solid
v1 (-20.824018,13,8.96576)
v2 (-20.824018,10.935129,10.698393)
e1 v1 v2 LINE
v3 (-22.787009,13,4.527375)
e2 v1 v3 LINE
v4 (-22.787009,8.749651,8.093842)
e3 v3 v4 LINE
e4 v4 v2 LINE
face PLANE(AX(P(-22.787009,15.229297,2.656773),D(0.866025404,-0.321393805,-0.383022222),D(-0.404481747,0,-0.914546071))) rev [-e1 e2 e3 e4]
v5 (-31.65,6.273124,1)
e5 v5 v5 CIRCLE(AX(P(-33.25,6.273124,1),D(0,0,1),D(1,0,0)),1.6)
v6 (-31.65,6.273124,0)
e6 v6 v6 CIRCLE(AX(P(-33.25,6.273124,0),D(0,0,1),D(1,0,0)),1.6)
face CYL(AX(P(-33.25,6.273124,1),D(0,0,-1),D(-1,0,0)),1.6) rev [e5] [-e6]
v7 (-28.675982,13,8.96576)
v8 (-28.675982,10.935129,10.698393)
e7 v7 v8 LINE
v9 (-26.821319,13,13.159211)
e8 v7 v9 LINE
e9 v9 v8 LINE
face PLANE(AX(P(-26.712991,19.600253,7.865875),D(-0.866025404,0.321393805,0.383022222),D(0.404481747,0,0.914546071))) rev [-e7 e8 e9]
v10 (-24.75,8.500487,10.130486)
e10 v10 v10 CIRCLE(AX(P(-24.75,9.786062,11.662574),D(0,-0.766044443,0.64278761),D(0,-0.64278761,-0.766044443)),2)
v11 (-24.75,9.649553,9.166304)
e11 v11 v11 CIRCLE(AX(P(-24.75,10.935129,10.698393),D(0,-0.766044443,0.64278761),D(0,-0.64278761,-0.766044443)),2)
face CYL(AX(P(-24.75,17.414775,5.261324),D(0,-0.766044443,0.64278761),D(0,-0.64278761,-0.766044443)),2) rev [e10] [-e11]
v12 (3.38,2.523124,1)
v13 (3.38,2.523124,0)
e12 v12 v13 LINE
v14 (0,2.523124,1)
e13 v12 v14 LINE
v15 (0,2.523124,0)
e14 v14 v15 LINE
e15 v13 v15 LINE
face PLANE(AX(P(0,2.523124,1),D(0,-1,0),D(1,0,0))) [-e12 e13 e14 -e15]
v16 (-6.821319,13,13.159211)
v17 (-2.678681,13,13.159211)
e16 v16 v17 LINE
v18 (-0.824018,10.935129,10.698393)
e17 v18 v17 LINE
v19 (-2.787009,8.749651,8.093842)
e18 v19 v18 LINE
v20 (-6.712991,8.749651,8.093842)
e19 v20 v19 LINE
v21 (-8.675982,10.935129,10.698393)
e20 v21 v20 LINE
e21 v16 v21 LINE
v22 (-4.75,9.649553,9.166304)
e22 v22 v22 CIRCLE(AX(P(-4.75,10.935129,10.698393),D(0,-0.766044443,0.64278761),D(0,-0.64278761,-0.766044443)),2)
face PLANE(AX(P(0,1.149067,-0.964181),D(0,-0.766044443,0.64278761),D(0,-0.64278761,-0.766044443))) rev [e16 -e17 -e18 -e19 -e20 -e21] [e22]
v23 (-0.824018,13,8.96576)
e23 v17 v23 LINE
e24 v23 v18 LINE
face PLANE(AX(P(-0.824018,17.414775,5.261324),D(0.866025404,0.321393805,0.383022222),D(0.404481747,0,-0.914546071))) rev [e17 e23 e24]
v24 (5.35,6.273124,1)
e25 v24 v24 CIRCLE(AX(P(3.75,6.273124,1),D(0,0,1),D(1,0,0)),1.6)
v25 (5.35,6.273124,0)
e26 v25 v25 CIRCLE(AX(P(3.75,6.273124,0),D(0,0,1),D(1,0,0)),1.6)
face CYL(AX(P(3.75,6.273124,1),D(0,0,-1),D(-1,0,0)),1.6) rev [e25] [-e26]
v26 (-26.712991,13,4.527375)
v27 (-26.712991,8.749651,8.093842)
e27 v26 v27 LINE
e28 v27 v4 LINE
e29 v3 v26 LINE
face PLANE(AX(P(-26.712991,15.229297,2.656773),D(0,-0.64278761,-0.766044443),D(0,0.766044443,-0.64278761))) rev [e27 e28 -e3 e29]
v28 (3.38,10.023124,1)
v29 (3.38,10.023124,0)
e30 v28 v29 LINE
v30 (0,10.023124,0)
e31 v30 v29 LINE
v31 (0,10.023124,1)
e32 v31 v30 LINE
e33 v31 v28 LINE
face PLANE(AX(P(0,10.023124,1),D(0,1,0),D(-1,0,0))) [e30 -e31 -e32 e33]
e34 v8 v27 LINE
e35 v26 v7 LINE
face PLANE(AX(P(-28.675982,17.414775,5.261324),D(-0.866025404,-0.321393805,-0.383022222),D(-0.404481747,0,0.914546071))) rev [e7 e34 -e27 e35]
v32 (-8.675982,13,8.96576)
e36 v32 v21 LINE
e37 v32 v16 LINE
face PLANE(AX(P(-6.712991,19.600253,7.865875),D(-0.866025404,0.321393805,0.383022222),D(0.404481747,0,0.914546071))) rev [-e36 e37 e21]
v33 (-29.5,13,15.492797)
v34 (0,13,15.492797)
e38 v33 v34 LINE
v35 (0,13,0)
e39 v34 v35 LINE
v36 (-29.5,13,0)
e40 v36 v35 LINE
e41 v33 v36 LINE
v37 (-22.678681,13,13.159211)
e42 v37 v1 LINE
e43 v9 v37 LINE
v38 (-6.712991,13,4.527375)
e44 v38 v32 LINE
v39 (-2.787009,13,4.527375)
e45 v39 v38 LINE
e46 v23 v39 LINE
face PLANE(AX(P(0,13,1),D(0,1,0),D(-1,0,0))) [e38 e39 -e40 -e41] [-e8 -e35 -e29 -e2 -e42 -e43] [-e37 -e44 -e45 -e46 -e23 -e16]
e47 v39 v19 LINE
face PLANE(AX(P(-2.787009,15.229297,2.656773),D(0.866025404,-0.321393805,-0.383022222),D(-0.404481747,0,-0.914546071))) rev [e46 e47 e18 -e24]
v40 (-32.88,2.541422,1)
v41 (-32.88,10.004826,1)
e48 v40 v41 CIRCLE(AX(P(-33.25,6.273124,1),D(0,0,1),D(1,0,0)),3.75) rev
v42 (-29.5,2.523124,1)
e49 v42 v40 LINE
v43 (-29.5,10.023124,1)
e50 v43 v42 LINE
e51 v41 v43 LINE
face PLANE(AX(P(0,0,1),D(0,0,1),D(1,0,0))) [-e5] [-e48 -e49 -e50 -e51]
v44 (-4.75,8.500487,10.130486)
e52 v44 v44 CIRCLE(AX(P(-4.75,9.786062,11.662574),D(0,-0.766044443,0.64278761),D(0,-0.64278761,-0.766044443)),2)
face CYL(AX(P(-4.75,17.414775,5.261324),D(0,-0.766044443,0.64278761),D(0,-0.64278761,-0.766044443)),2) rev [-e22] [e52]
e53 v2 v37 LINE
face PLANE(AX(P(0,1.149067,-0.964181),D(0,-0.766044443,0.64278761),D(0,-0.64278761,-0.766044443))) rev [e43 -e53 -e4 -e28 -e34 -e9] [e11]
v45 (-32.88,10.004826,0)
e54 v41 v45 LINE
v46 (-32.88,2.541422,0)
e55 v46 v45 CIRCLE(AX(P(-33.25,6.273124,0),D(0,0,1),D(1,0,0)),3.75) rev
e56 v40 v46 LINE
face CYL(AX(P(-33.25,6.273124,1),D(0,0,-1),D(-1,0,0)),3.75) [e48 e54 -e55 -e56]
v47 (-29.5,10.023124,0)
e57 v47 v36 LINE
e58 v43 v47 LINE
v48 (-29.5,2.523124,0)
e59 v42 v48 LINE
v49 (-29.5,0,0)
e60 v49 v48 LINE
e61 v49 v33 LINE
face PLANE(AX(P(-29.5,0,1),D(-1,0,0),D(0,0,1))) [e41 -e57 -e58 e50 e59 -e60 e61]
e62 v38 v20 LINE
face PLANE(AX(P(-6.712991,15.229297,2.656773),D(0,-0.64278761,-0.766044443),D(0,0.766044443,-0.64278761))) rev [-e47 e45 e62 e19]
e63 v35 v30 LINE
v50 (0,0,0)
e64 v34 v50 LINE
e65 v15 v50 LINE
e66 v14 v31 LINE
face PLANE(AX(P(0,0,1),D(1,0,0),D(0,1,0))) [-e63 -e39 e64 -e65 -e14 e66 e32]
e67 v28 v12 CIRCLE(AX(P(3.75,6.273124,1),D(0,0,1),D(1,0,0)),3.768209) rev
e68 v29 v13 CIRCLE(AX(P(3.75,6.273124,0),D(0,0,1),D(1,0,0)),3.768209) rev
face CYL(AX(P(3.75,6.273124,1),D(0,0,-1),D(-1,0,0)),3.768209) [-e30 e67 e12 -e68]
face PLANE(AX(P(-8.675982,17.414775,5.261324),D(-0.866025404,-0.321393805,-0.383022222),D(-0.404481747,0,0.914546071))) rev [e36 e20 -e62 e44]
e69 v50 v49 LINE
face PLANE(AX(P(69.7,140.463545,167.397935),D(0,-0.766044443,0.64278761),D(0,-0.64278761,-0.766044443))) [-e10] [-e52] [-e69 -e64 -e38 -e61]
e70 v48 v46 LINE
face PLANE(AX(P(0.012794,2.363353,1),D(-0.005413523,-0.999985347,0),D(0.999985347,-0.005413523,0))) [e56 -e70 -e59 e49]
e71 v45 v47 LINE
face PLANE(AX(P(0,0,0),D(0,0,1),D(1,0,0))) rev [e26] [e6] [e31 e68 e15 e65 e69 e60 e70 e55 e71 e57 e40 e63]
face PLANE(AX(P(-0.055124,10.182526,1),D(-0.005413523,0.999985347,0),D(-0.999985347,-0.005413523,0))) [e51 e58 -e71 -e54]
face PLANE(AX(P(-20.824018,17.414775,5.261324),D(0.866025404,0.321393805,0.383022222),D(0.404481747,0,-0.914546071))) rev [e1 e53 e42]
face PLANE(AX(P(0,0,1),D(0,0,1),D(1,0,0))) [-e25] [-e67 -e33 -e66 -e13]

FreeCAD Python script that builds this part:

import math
import FreeCAD as App
import Part
import Sketcher
Q = App.Units.Quantity

doc = App.newDocument("Part")
body = doc.addObject("PartDesign::Body", "Body")

# Sketch on XY plane
sketch1 = body.newObject("Sketcher::SketchObject", "Sketch")
sketch1.AttachmentSupport = (doc.getObject("XY_Plane"), [""])
sketch1.MapMode = "FlatFace"
sketch1.addGeometry([
    Part.LineSegment(App.Vector(-29.5, 13, 0), App.Vector(-29.5, 10, 0)),  # 0
    Part.LineSegment(App.Vector(-29.5, 10, 0), App.Vector(-32.9, 10, 0)),  # 1
    Part.ArcOfCircle(Part.Circle(App.Vector(-33.2, 6.3, 0), App.Vector(0, 0, 1), 3.8), math.radians(84), math.radians(276)),  # 2
    Part.LineSegment(App.Vector(-32.9, 2.5, 0), App.Vector(-29.5, 2.5, 0)),  # 3
    Part.LineSegment(App.Vector(-29.5, 2.5, 0), App.Vector(-29.5, 0, 0)),  # 4
    Part.LineSegment(App.Vector(-29.5, 0, 0), App.Vector(0, 0, 0)),  # 5
    Part.LineSegment(App.Vector(0, 0, 0), App.Vector(0, 2.5, 0)),  # 6
    Part.LineSegment(App.Vector(0, 2.5, 0), App.Vector(3.4, 2.5, 0)),  # 7
    Part.ArcOfCircle(Part.Circle(App.Vector(3.8, 6.3, 0), App.Vector(0, 0, 1), 3.8), math.radians(-96), math.radians(96)),  # 8
    Part.LineSegment(App.Vector(3.4, 10, 0), App.Vector(0, 10, 0)),  # 9
    Part.LineSegment(App.Vector(0, 10, 0), App.Vector(0, 13, 0)),  # 10
    Part.LineSegment(App.Vector(0, 13, 0), App.Vector(-29.5, 13, 0)),  # 11
    Part.Circle(App.Vector(-33.2, 6.3, 0), App.Vector(0, 0, 1), 1.6),  # 12
    Part.Circle(App.Vector(3.8, 6.3, 0), App.Vector(0, 0, 1), 1.6),  # 13
], False)
sketch1.addConstraint([
    Sketcher.Constraint("Coincident", 0, 2, 1, 1),
    Sketcher.Constraint("Coincident", 1, 2, 2, 1),
    Sketcher.Constraint("Coincident", 2, 2, 3, 1),
    Sketcher.Constraint("Coincident", 3, 2, 4, 1),
    Sketcher.Constraint("Coincident", 4, 2, 5, 1),
    Sketcher.Constraint("Coincident", 5, 2, 6, 1),
    Sketcher.Constraint("Coincident", 6, 2, 7, 1),
    Sketcher.Constraint("Coincident", 7, 2, 8, 1),
    Sketcher.Constraint("Coincident", 8, 2, 9, 1),
    Sketcher.Constraint("Coincident", 9, 2, 10, 1),
    Sketcher.Constraint("Coincident", 10, 2, 11, 1),
    Sketcher.Constraint("Coincident", 11, 2, 0, 1),
    Sketcher.Constraint("Vertical", 0),
    Sketcher.Constraint("Vertical", 4),
    Sketcher.Constraint("Horizontal", 5),
    Sketcher.Constraint("Vertical", 6),
    Sketcher.Constraint("Horizontal", 7),
    Sketcher.Constraint("Horizontal", 9),
    Sketcher.Constraint("Vertical", 10),
    Sketcher.Constraint("Horizontal", 11),
    Sketcher.Constraint("Coincident", 5, 2, -1, 1),
    Sketcher.Constraint("Coincident", 12, 3, 2, 3),
    Sketcher.Constraint("Coincident", 13, 3, 8, 3),
    Sketcher.Constraint("Equal", 12, 13),
    Sketcher.Constraint("PointOnObject", 9, 2, -2),
    Sketcher.Constraint("Horizontal", 2, 3, 8, 3),
    Sketcher.Constraint("Horizontal", 3, 2, 6, 2),
    Sketcher.Constraint("Horizontal", 0, 2, 8, 2),
    Sketcher.Constraint("Vertical", 1, 2, 2, 2),
    Sketcher.Constraint("Vertical", 0, 2, 3, 2),
    Sketcher.Constraint("Vertical", 7, 2, 8, 2),
    Sketcher.Constraint("Diameter", 12, Q("3.2 mm")),
    Sketcher.Constraint("Radius", 2, Q("3.75 mm")),
    Sketcher.Constraint("DistanceX", 5, 1, 5, 2, Q("29.5 mm")),
    Sketcher.Constraint("DistanceY", -1, 1, 10, 2, Q("13 mm")),
    Sketcher.Constraint("DistanceX", 2, 3, 8, 3, Q("37 mm")),
    Sketcher.Constraint("DistanceX", 7, 1, 7, 2, Q("3.38 mm")),
    Sketcher.Constraint("DistanceY", 3, 2, 0, 2, Q("7.5 mm")),
    Sketcher.Constraint("DistanceX", 2, 3, -1, 1, Q("33.25 mm")),
    Sketcher.Constraint("DistanceX", 1, 2, -1, 1, Q("32.88 mm")),
    Sketcher.Constraint("DistanceY", 0, 2, 0, 1, Q("2.976876 mm")),
])
pad1 = body.newObject("PartDesign::Pad", "Pad")
pad1.Profile = sketch1
pad1.Length = 1

# Sketch on XY plane
sketch2 = body.newObject("Sketcher::SketchObject", "Sketch001")
sketch2.AttachmentSupport = (doc.getObject("XY_Plane"), [""])
sketch2.MapMode = "FlatFace"
sketch2.addGeometry([
    Part.LineSegment(App.Vector(-30, 13, 0), App.Vector(-30, 0, 0)),
    Part.LineSegment(App.Vector(-30, 0, 0), App.Vector(0, 0, 0)),
    Part.LineSegment(App.Vector(0, 0, 0), App.Vector(0, 13, 0)),
    Part.LineSegment(App.Vector(0, 13, 0), App.Vector(-30, 13, 0)),
], False)
sketch2.addConstraint([
    Sketcher.Constraint("Coincident", 0, 2, 1, 1),
    Sketcher.Constraint("Coincident", 1, 2, 2, 1),
    Sketcher.Constraint("Coincident", 2, 2, 3, 1),
    Sketcher.Constraint("Coincident", 3, 2, 0, 1),
    Sketcher.Constraint("Vertical", 0),
    Sketcher.Constraint("Horizontal", 1),
    Sketcher.Constraint("Vertical", 2),
    Sketcher.Constraint("Horizontal", 3),
    Sketcher.Constraint("Coincident", 1, 2, -1, 1),
    Sketcher.Constraint("DistanceY", 0, 2, 0, 1, Q("13 mm")),
    Sketcher.Constraint("DistanceX", 1, 1, 1, 2, Q("29.5 mm")),
])
pad2 = body.newObject("PartDesign::Pad", "Pad001")
pad2.Profile = sketch2
pad2.Length = 15.492797

# Sketch on an angled plane
sketch3 = body.newObject("Sketcher::SketchObject", "Sketch002")
sketch3.Placement = App.Placement(App.Vector(0, 0, 0), App.Rotation(App.Vector(1, 0, 0), App.Vector(0, 0.64278761, 0.766044443), App.Vector(0, -0.766044443, 0.64278761), "ZXY"))
sketch3.addGeometry([
    Part.Circle(App.Vector(-4.8, 15.2, 0), App.Vector(0, 0, 1), 2),
    Part.Circle(App.Vector(-24.8, 15.2, 0), App.Vector(0, 0, 1), 2),
], False)
sketch3.addConstraint([
    Sketcher.Constraint("Equal", 0, 1),
    Sketcher.Constraint("Horizontal", 0, 3, 1, 3),
    Sketcher.Constraint("Diameter", 0, Q("4 mm")),
    Sketcher.Constraint("DistanceX", 1, 3, 0, 3, Q("20 mm")),
    Sketcher.Constraint("DistanceX", 0, 3, -1, 1, Q("4.75 mm")),
    Sketcher.Constraint("DistanceY", -1, 1, 0, 3, Q("15.22441 mm")),
])
pocket1 = body.newObject("PartDesign::Pocket", "Pocket")
pocket1.Profile = sketch3
pocket1.Type = "ThroughAll"

# Sketch on an angled plane
sketch4 = body.newObject("Sketcher::SketchObject", "Sketch003")
sketch4.Placement = App.Placement(App.Vector(0, 1.149067, -0.964181), App.Rotation(App.Vector(1, 0, 0), App.Vector(0, 0.64278761, 0.766044443), App.Vector(0, -0.766044443, 0.64278761), "ZXY"))
sketch4.addGeometry([
    Part.LineSegment(App.Vector(-2.8, 11.8, 0), App.Vector(-0.8, 15.2, 0)),  # 0
    Part.LineSegment(App.Vector(-0.8, 15.2, 0), App.Vector(-2.8, 18.6, 0)),  # 1
    Part.LineSegment(App.Vector(-2.8, 18.6, 0), App.Vector(-6.7, 18.6, 0)),  # 2
    Part.LineSegment(App.Vector(-6.7, 18.6, 0), App.Vector(-8.7, 15.2, 0)),  # 3
    Part.LineSegment(App.Vector(-8.7, 15.2, 0), App.Vector(-6.7, 11.8, 0)),  # 4
    Part.LineSegment(App.Vector(-6.7, 11.8, 0), App.Vector(-2.8, 11.8, 0)),  # 5
    Part.Circle(App.Vector(-4.8, 15.2, 0), App.Vector(0, 0, 1), 2),  # 6
    Part.LineSegment(App.Vector(-20.8, 15.2, 0), App.Vector(-22.8, 18.6, 0)),  # 7
    Part.LineSegment(App.Vector(-22.8, 18.6, 0), App.Vector(-26.7, 18.6, 0)),  # 8
    Part.LineSegment(App.Vector(-26.7, 18.6, 0), App.Vector(-28.7, 15.2, 0)),  # 9
    Part.LineSegment(App.Vector(-28.7, 15.2, 0), App.Vector(-26.7, 11.8, 0)),  # 10
    Part.LineSegment(App.Vector(-26.7, 11.8, 0), App.Vector(-22.8, 11.8, 0)),  # 11
    Part.LineSegment(App.Vector(-22.8, 11.8, 0), App.Vector(-20.8, 15.2, 0)),  # 12
    Part.Circle(App.Vector(-24.8, 15.2, 0), App.Vector(0, 0, 1), 2),  # 13
], False)
sketch4.addConstraint([
    Sketcher.Constraint("Coincident", 0, 2, 1, 1),
    Sketcher.Constraint("Coincident", 1, 2, 2, 1),
    Sketcher.Constraint("Coincident", 2, 2, 3, 1),
    Sketcher.Constraint("Coincident", 3, 2, 4, 1),
    Sketcher.Constraint("Coincident", 4, 2, 5, 1),
    Sketcher.Constraint("Coincident", 5, 2, 0, 1),
    Sketcher.Constraint("Coincident", 7, 2, 8, 1),
    Sketcher.Constraint("Coincident", 8, 2, 9, 1),
    Sketcher.Constraint("Coincident", 9, 2, 10, 1),
    Sketcher.Constraint("Coincident", 10, 2, 11, 1),
    Sketcher.Constraint("Coincident", 11, 2, 12, 1),
    Sketcher.Constraint("Coincident", 12, 2, 7, 1),
    Sketcher.Constraint("Horizontal", 2),
    Sketcher.Constraint("Horizontal", 5),
    Sketcher.Constraint("Horizontal", 8),
    Sketcher.Constraint("Horizontal", 11),
    Sketcher.Constraint("Equal", 6, 13),
    Sketcher.Constraint("Parallel", 0, 3),
    Sketcher.Constraint("Parallel", 1, 4),
    Sketcher.Constraint("Parallel", 4, 7),
    Sketcher.Constraint("Parallel", 3, 9),
    Sketcher.Constraint("Parallel", 7, 10),
    Sketcher.Constraint("Parallel", 9, 12),
    Sketcher.Constraint("Horizontal", 6, 3, 13, 3),
    Sketcher.Constraint("Horizontal", 13, 3, 0, 2),
    Sketcher.Constraint("Horizontal", 0, 2, 3, 2),
    Sketcher.Constraint("Horizontal", 2, 2, 7, 2),
    Sketcher.Constraint("Horizontal", 3, 2, 9, 2),
    Sketcher.Constraint("Horizontal", 5, 2, 10, 2),
    Sketcher.Constraint("Horizontal", 9, 2, 12, 2),
    Sketcher.Constraint("Vertical", 2, 2, 4, 2),
    Sketcher.Constraint("Vertical", 1, 2, 5, 2),
    Sketcher.Constraint("Equal", 5, 8),
    Sketcher.Constraint("Diameter", 6, Q("4 mm")),
    Sketcher.Constraint("Angle", 0, Q("60 deg")),
    Sketcher.Constraint("DistanceX", 13, 3, 6, 3, Q("20 mm")),
    Sketcher.Constraint("DistanceX", 8, 2, 2, 2, Q("20 mm")),
    Sketcher.Constraint("DistanceY", 6, 3, 1, 2, Q("3.4 mm")),
    Sketcher.Constraint("DistanceX", 6, 3, -1, 1, Q("4.75 mm")),
    Sketcher.Constraint("DistanceX", 2, 2, 2, 1, Q("3.925982 mm")),
    Sketcher.Constraint("DistanceY", -1, 1, 6, 3, Q("15.22441 mm")),
    Sketcher.Constraint("DistanceX", 0, 2, -1, 1, Q("0.824018 mm")),
])
pocket2 = body.newObject("PartDesign::Pocket", "Pocket001")
pocket2.Profile = sketch4
pocket2.Length = 41.666654

# Sketch on an angled plane
sketch5 = body.newObject("Sketcher::SketchObject", "Sketch004")
sketch5.Placement = App.Placement(App.Vector(0, 0, 0), App.Rotation(App.Vector(1, 0, 0), App.Vector(0, 0.64278761, 0.766044443), App.Vector(0, -0.766044443, 0.64278761), "ZXY"))
sketch5.addGeometry([
    Part.LineSegment(App.Vector(-30, 20, 0), App.Vector(-30, -2, 0)),
    Part.LineSegment(App.Vector(-30, -2, 0), App.Vector(0, -2, 0)),
    Part.LineSegment(App.Vector(0, -2, 0), App.Vector(0, 20, 0)),
    Part.LineSegment(App.Vector(0, 20, 0), App.Vector(-30, 20, 0)),
], False)
sketch5.addConstraint([
    Sketcher.Constraint("Coincident", 0, 2, 1, 1),
    Sketcher.Constraint("Coincident", 1, 2, 2, 1),
    Sketcher.Constraint("Coincident", 2, 2, 3, 1),
    Sketcher.Constraint("Coincident", 3, 2, 0, 1),
    Sketcher.Constraint("Vertical", 0),
    Sketcher.Constraint("Horizontal", 1),
    Sketcher.Constraint("Vertical", 2),
    Sketcher.Constraint("Horizontal", 3),
    Sketcher.Constraint("PointOnObject", 1, 2, -2),
    Sketcher.Constraint("DistanceX", 1, 1, 1, 2, Q("29.5 mm")),
    Sketcher.Constraint("DistanceY", 0, 2, 0, 1, Q("22.485495 mm")),
    Sketcher.Constraint("DistanceY", -1, 1, 2, 2, Q("20.22441 mm")),
])
pocket3 = body.newObject("PartDesign::Pocket", "Pocket002")
pocket3.Profile = sketch5
pocket3.Type = "ThroughAll"
pocket3.Reversed = True

doc.recompute()
